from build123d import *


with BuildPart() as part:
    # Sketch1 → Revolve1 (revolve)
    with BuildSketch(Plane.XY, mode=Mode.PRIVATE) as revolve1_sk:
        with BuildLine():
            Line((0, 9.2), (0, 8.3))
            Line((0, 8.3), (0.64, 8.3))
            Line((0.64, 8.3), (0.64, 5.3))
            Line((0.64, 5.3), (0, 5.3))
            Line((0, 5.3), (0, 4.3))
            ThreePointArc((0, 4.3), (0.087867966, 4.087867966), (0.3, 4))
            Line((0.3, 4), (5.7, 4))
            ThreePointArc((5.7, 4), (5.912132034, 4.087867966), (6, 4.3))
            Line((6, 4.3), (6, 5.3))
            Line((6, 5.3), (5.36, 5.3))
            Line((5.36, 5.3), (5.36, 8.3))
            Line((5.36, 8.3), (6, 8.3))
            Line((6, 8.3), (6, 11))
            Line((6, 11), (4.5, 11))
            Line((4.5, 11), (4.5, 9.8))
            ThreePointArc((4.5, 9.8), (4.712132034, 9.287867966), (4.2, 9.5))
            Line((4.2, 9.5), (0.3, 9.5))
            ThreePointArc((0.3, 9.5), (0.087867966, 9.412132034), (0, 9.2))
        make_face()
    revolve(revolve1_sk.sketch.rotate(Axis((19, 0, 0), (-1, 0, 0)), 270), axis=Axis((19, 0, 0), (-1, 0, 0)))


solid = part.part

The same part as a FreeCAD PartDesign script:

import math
import FreeCAD as App
import Part
import Sketcher
from FreeCAD import Vector

doc = App.newDocument("Part")
params = doc.addObject("Spreadsheet::Sheet", "Params")
for row, (alias, value) in enumerate([
    ("sketch1_radius", "0.3 mm"),
    ("sketch1_height", "3 mm"),
    ("sketch1_height2", "1 mm"),
    ("sketch1_width", "5.4 mm"),
    ("sketch1_width2", "1.5 mm"),
    ("revolution_angle", "360 deg"),
], start=1):
    params.set(f"A{row}", alias)
    params.set(f"B{row}", "=" + value)
    params.setAlias(f"B{row}", alias)

body = doc.addObject("PartDesign::Body", "Body")

# Sketch on XY plane
sketch1 = body.newObject("Sketcher::SketchObject", "Sketch")
sketch1.AttachmentSupport = (doc.getObject("XY_Plane"), [""])
sketch1.MapMode = "FlatFace"
sketch1.addGeometry([
    Part.LineSegment(Vector(0, 9.2, 0), Vector(0, 8.3, 0)),  # 0
    Part.LineSegment(Vector(0, 8.3, 0), Vector(0.64, 8.3, 0)),  # 1
    Part.LineSegment(Vector(0.64, 8.3, 0), Vector(0.64, 5.3, 0)),  # 2
    Part.LineSegment(Vector(0.64, 5.3, 0), Vector(0, 5.3, 0)),  # 3
    Part.LineSegment(Vector(0, 5.3, 0), Vector(0, 4.3, 0)),  # 4
    Part.ArcOfCircle(Part.Circle(Vector(0.3, 4.3, 0), Vector(0, 0, 1), 0.3), math.radians(-180), math.radians(-90)),  # 5
    Part.LineSegment(Vector(0.3, 4, 0), Vector(5.7, 4, 0)),  # 6
    Part.ArcOfCircle(Part.Circle(Vector(5.7, 4.3, 0), Vector(0, 0, 1), 0.3), math.radians(-90), math.radians(0)),  # 7
    Part.LineSegment(Vector(6, 4.3, 0), Vector(6, 5.3, 0)),  # 8
    Part.LineSegment(Vector(6, 5.3, 0), Vector(5.36, 5.3, 0)),  # 9
    Part.LineSegment(Vector(5.36, 5.3, 0), Vector(5.36, 8.3, 0)),  # 10
    Part.LineSegment(Vector(5.36, 8.3, 0), Vector(6, 8.3, 0)),  # 11
    Part.LineSegment(Vector(6, 8.3, 0), Vector(6, 11, 0)),  # 12
    Part.LineSegment(Vector(6, 11, 0), Vector(4.5, 11, 0)),  # 13
    Part.LineSegment(Vector(4.5, 11, 0), Vector(4.5, 9.8, 0)),  # 14
    Part.ArcOfCircle(Part.Circle(Vector(4.5, 9.5, 0), Vector(0, 0, 1), 0.3), math.radians(180), math.radians(450)),  # 15
    Part.LineSegment(Vector(4.2, 9.5, 0), Vector(0.3, 9.5, 0)),  # 16
    Part.ArcOfCircle(Part.Circle(Vector(0.3, 9.2, 0), Vector(0, 0, 1), 0.3), math.radians(90), math.radians(180)),  # 17
], False)
sketch1.addConstraint([
    Sketcher.Constraint("Coincident", 0, 2, 1, 1),
    Sketcher.Constraint("Coincident", 1, 2, 2, 1),
    Sketcher.Constraint("Coincident", 2, 2, 3, 1),
    Sketcher.Constraint("Coincident", 3, 2, 4, 1),
    Sketcher.Constraint("Tangent", 4, 2, 5, 1),
    Sketcher.Constraint("Tangent", 5, 2, 6, 1),
    Sketcher.Constraint("Tangent", 6, 2, 7, 1),
    Sketcher.Constraint("Tangent", 7, 2, 8, 1),
    Sketcher.Constraint("Coincident", 8, 2, 9, 1),
    Sketcher.Constraint("Coincident", 9, 2, 10, 1),
    Sketcher.Constraint("Coincident", 10, 2, 11, 1),
    Sketcher.Constraint("Coincident", 11, 2, 12, 1),
    Sketcher.Constraint("Coincident", 12, 2, 13, 1),
    Sketcher.Constraint("Coincident", 13, 2, 14, 1),
    Sketcher.Constraint("Coincident", 14, 2, 15, 2),
    Sketcher.Constraint("Coincident", 15, 1, 16, 1),
    Sketcher.Constraint("Tangent", 16, 2, 17, 1),
    Sketcher.Constraint("Tangent", 17, 2, 0, 1),
    Sketcher.Constraint("Vertical", 0),
    Sketcher.Constraint("Horizontal", 1),
    Sketcher.Constraint("Vertical", 2),
    Sketcher.Constraint("Horizontal", 3),
    Sketcher.Constraint("Vertical", 4),
    Sketcher.Constraint("Horizontal", 6),
    Sketcher.Constraint("Vertical", 8),
    Sketcher.Constraint("Horizontal", 9),
    Sketcher.Constraint("Vertical", 10),
    Sketcher.Constraint("Horizontal", 11),
    Sketcher.Constraint("Vertical", 12),
    Sketcher.Constraint("Horizontal", 13),
    Sketcher.Constraint("Vertical", 14),
    Sketcher.Constraint("Horizontal", 16),
    Sketcher.Constraint("Equal", 5, 7),
    Sketcher.Constraint("Equal", 7, 15),
    Sketcher.Constraint("Equal", 15, 17),
    Sketcher.Constraint("PointOnObject", 0, 2, -2),
    Sketcher.Constraint("PointOnObject", 3, 2, -2),
    Sketcher.Constraint("Horizontal", 3, 2, 8, 2),
    Sketcher.Constraint("Horizontal", 1, 2, 10, 2),
    Sketcher.Constraint("Vertical", 8, 2, 11, 2),
    Sketcher.Constraint("Vertical", 15, 3, 13, 2),
    Sketcher.Constraint("Equal", 3, 9),
    Sketcher.Constraint("Radius", 5, 0.3),
    Sketcher.Constraint("DistanceY", 2, 2, 2, 1, 3.0),
    Sketcher.Constraint("DistanceY", 4, 2, 4, 1, 1.0),
    Sketcher.Constraint("DistanceX", 6, 1, 6, 2, 5.4),
    Sketcher.Constraint("DistanceX", 13, 2, 13, 1, 1.5),
    Sketcher.Constraint("DistanceY", 0, 2, 0, 1, 0.9),
    Sketcher.Constraint("DistanceY", 12, 1, 12, 2, 2.7),
    Sketcher.Constraint("DistanceY", 14, 2, 14, 1, 1.2),
    Sketcher.Constraint("DistanceY", -1, 1, 5, 2, 4.0),
    Sketcher.Constraint("DistanceX", 1, 1, 1, 2, 0.64),
])
sketch1.setExpression("Constraints[42]", "Params.sketch1_radius")
sketch1.setExpression("Constraints[43]", "Params.sketch1_height")
sketch1.setExpression("Constraints[44]", "Params.sketch1_height2")
sketch1.setExpression("Constraints[45]", "Params.sketch1_width")
sketch1.setExpression("Constraints[46]", "Params.sketch1_width2")
revolution = body.newObject("PartDesign::Revolution", "Revolution")
revolution.Profile = sketch1
revolution.ReferenceAxis = (sketch1, ["H_Axis"])
revolution.setExpression("Angle", "Params.revolution_angle")

doc.recompute()
